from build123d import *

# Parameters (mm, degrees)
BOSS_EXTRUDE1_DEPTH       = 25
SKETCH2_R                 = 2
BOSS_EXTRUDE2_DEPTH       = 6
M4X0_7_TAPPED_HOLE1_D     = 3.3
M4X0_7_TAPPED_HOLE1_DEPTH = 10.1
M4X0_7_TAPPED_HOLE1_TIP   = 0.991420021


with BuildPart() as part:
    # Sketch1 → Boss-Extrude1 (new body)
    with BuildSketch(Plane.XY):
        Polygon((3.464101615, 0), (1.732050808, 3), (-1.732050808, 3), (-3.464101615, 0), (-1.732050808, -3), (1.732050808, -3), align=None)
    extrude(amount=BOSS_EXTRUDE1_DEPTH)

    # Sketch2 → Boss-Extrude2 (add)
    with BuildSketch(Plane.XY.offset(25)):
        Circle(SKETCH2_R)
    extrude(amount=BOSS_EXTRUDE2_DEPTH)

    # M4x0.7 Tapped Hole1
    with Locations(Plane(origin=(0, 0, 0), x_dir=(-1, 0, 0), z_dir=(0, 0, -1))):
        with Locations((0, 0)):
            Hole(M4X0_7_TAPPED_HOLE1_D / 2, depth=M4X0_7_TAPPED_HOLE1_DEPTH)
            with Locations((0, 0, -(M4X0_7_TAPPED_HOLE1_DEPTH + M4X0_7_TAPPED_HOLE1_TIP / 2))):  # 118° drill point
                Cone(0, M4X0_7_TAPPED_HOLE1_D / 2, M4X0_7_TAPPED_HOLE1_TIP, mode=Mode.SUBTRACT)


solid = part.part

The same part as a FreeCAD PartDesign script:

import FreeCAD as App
import Part
import Sketcher
from FreeCAD import Vector
Q = App.Units.Quantity

doc = App.newDocument("Part")
body = doc.addObject("PartDesign::Body", "Body")

# Sketch on XY plane
sketch1 = body.newObject("Sketcher::SketchObject", "Sketch")
sketch1.AttachmentSupport = (doc.getObject("XY_Plane"), [""])
sketch1.MapMode = "FlatFace"
sketch1.addGeometry([
    Part.LineSegment(Vector(3.5, 0, 0), Vector(1.7, 3, 0)),  # 0
    Part.LineSegment(Vector(1.7, 3, 0), Vector(-1.7, 3, 0)),  # 1
    Part.LineSegment(Vector(-1.7, 3, 0), Vector(-3.5, 0, 0)),  # 2
    Part.LineSegment(Vector(-3.5, 0, 0), Vector(-1.7, -3, 0)),  # 3
    Part.LineSegment(Vector(-1.7, -3, 0), Vector(1.7, -3, 0)),  # 4
    Part.LineSegment(Vector(1.7, -3, 0), Vector(3.5, 0, 0)),  # 5
], False)
sketch1.addConstraint([
    Sketcher.Constraint("Coincident", 0, 2, 1, 1),
    Sketcher.Constraint("Coincident", 1, 2, 2, 1),
    Sketcher.Constraint("Coincident", 2, 2, 3, 1),
    Sketcher.Constraint("Coincident", 3, 2, 4, 1),
    Sketcher.Constraint("Coincident", 4, 2, 5, 1),
    Sketcher.Constraint("Coincident", 5, 2, 0, 1),
    Sketcher.Constraint("Horizontal", 1),
    Sketcher.Constraint("Horizontal", 4),
    Sketcher.Constraint("Symmetric", 0, 2, 3, 2, -1, 1),
    Sketcher.Constraint("Symmetric", 2, 2, 5, 2, -1, 1),
    Sketcher.Constraint("PointOnObject", 2, 2, -1),
    Sketcher.Constraint("Parallel", 2, 5),
    Sketcher.Constraint("Vertical", 1, 2, 3, 2),
    Sketcher.Constraint("Angle", 0, Q("120 deg")),
    Sketcher.Constraint("DistanceY", -1, 1, 0, 2, Q("3 mm")),
    Sketcher.Constraint("DistanceX", 1, 2, 1, 1, Q("3.464102 mm")),
])
pad1 = body.newObject("PartDesign::Pad", "Pad")
pad1.Profile = sketch1
pad1.Length = 25

# Sketch on XY plane
sketch2 = body.newObject("Sketcher::SketchObject", "Sketch001")
sketch2.AttachmentSupport = (doc.getObject("XY_Plane"), [""])
sketch2.MapMode = "FlatFace"
sketch2.AttachmentOffset = App.Placement(Vector(0, 0, 25), App.Rotation())
sketch2.addGeometry(Part.Circle(Vector(0, 0, 0), Vector(0, 0, 1), 2), False)
sketch2.addConstraint([
    Sketcher.Constraint("Coincident", 0, 3, -1, 1),
    Sketcher.Constraint("Diameter", 0, Q("4 mm")),
])
pad2 = body.newObject("PartDesign::Pad", "Pad001")
pad2.Profile = sketch2
pad2.Length = 6

# Sketch on XY plane
sketch3 = body.newObject("Sketcher::SketchObject", "Sketch002")
sketch3.AttachmentSupport = (doc.getObject("XY_Plane"), [""])
sketch3.MapMode = "FlatFace"
sketch3.addGeometry(Part.Circle(Vector(0, 0, 0), Vector(0, 0, 1), 1.6), False)
sketch3.addConstraint([
    Sketcher.Constraint("Coincident", 0, 3, -1, 1),
    Sketcher.Constraint("Diameter", 0, Q("3.3 mm")),
])
doc.recompute()
hole = body.newObject("PartDesign::Hole", "Hole")
hole.Profile = sketch3
hole.ThreadType = "None"
hole.Diameter = 3.3
hole.DepthType = "Dimension"
hole.Depth = 10.1
hole.DrillPoint = "Angled"
hole.DrillPointAngle = 118
hole.Reversed = True

doc.recompute()
